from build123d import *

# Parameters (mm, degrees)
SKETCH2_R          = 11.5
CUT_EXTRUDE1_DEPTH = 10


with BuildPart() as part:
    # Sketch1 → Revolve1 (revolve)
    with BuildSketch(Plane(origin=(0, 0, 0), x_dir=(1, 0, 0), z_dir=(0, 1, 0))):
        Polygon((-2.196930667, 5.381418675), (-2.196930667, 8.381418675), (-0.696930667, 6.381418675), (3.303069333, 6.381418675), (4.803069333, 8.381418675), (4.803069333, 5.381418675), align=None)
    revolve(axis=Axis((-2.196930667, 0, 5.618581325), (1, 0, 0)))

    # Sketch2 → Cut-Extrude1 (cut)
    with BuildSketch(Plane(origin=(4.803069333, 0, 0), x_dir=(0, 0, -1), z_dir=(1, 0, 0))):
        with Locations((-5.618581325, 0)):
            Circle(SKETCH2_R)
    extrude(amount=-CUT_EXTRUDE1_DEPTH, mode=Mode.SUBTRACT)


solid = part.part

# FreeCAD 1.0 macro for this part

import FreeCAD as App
import Part
import Sketcher
from FreeCAD import Vector
Q = App.Units.Quantity

doc = App.newDocument("Part")
body = doc.addObject("PartDesign::Body", "Body")

# Sketch on XZ plane
sketch1 = body.newObject("Sketcher::SketchObject", "Sketch")
sketch1.AttachmentSupport = (doc.getObject("XZ_Plane"), [""])
sketch1.MapMode = "FlatFace"
sketch1.addGeometry(Part.LineSegment(Vector(-2.2, -8.4, 0), Vector(-2.2, -5.4, 0)), False)
sketch1.addGeometry(Part.LineSegment(Vector(-2.2, -5.4, 0), Vector(4.8, -5.4, 0)), False)
sketch1.addGeometry(Part.LineSegment(Vector(4.8, -5.4, 0), Vector(4.8, -8.4, 0)), False)
sketch1.addGeometry(Part.LineSegment(Vector(4.8, -8.4, 0), Vector(3.3, -6.4, 0)), False)
sketch1.addGeometry(Part.LineSegment(Vector(3.3, -6.4, 0), Vector(-0.7, -6.4, 0)), False)
sketch1.addGeometry(Part.LineSegment(Vector(-0.7, -6.4, 0), Vector(-2.2, -8.4, 0)), False)
sketch1.addGeometry(Part.LineSegment(Vector(-2.2, 5.6, 0), Vector(4.8, 5.6, 0)), True)  # axis
sketch1.addConstraint(Sketcher.Constraint("Coincident", 0, 2, 1, 1))
sketch1.addConstraint(Sketcher.Constraint("Coincident", 1, 2, 2, 1))
sketch1.addConstraint(Sketcher.Constraint("Coincident", 2, 2, 3, 1))
sketch1.addConstraint(Sketcher.Constraint("Coincident", 3, 2, 4, 1))
sketch1.addConstraint(Sketcher.Constraint("Coincident", 4, 2, 5, 1))
sketch1.addConstraint(Sketcher.Constraint("Coincident", 5, 2, 0, 1))
sketch1.addConstraint(Sketcher.Constraint("Vertical", 0))
sketch1.addConstraint(Sketcher.Constraint("Horizontal", 1))
sketch1.addConstraint(Sketcher.Constraint("Vertical", 2))
sketch1.addConstraint(Sketcher.Constraint("Horizontal", 4))
sketch1.addConstraint(Sketcher.Constraint("Horizontal", 6))
sketch1.addConstraint(Sketcher.Constraint("Horizontal", 2, 2, 5, 2))
sketch1.addConstraint(Sketcher.Constraint("Vertical", 5, 2, 6, 1))
sketch1.addConstraint(Sketcher.Constraint("Vertical", 2, 2, 6, 2))
sketch1.addConstraint(Sketcher.Constraint("Equal", 3, 5))
sketch1.addConstraint(Sketcher.Constraint("DistanceX", 1, 1, 1, 2, Q("7 mm")))
sketch1.addConstraint(Sketcher.Constraint("DistanceX", 4, 2, 4, 1, Q("4 mm")))
sketch1.addConstraint(Sketcher.Constraint("DistanceY", 0, 1, 0, 2, Q("3 mm")))
sketch1.addConstraint(Sketcher.Constraint("DistanceY", 3, 2, 1, 2, Q("1 mm")))
sketch1.addConstraint(Sketcher.Constraint("DistanceY", 0, 2, 6, 1, Q("11 mm")))
sketch1.addConstraint(Sketcher.Constraint("DistanceX", 0, 2, -1, 1, Q("2.196931 mm")))
sketch1.addConstraint(Sketcher.Constraint("DistanceY", 0, 2, -1, 1, Q("5.381419 mm")))
revolution = body.newObject("PartDesign::Revolution", "Revolution")
revolution.Profile = sketch1
revolution.ReferenceAxis = (sketch1, ["Axis0"])
revolution.Angle = 360

# Sketch on YZ plane
sketch2 = body.newObject("Sketcher::SketchObject", "Sketch001")
sketch2.AttachmentSupport = (doc.getObject("YZ_Plane"), [""])
sketch2.MapMode = "FlatFace"
sketch2.AttachmentOffset = App.Placement(Vector(0, 0, 4.803069), App.Rotation())
sketch2.addGeometry(Part.Circle(Vector(0, 6, 0), Vector(0, 0, 1), 12), False)
sketch2.addConstraint(Sketcher.Constraint("PointOnObject", 0, 3, -2))
sketch2.addConstraint(Sketcher.Constraint("Diameter", 0, Q("23 mm")))
sketch2.addConstraint(Sketcher.Constraint("DistanceY", -1, 1, 0, 3, Q("5.618581 mm")))
pocket1 = body.newObject("PartDesign::Pocket", "Pocket")
pocket1.Profile = sketch2
pocket1.Length = 10

doc.recompute()
